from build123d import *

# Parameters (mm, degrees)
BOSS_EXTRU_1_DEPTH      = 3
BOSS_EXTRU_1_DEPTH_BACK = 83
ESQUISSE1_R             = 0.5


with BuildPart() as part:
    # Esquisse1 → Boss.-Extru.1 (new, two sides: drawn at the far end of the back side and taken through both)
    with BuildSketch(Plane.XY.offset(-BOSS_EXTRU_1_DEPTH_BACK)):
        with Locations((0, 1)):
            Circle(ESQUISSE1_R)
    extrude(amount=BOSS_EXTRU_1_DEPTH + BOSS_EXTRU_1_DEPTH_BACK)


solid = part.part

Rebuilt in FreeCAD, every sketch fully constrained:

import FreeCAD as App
import Part
import Sketcher

doc = App.newDocument("Part")
body = doc.addObject("PartDesign::Body", "Body")

# Sketch on XY plane
sketch1 = body.newObject("Sketcher::SketchObject", "Sketch")
sketch1.AttachmentSupport = (doc.getObject("XY_Plane"), [""])
sketch1.MapMode = "FlatFace"
sketch1.addGeometry(Part.Circle(App.Vector(0, 1, 0), App.Vector(0, 0, 1), 0.5), False)
sketch1.addConstraint(Sketcher.Constraint("PointOnObject", 0, 3, -2))
sketch1.addConstraint(Sketcher.Constraint("Diameter", 0, 1.0))
sketch1.addConstraint(Sketcher.Constraint("DistanceY", -1, 1, 0, 3, 1.0))
pad1 = body.newObject("PartDesign::Pad", "Pad")
pad1.Profile = sketch1
pad1.Type = "TwoLengths"
pad1.Length = 3
pad1.Length2 = 83

doc.recompute()
